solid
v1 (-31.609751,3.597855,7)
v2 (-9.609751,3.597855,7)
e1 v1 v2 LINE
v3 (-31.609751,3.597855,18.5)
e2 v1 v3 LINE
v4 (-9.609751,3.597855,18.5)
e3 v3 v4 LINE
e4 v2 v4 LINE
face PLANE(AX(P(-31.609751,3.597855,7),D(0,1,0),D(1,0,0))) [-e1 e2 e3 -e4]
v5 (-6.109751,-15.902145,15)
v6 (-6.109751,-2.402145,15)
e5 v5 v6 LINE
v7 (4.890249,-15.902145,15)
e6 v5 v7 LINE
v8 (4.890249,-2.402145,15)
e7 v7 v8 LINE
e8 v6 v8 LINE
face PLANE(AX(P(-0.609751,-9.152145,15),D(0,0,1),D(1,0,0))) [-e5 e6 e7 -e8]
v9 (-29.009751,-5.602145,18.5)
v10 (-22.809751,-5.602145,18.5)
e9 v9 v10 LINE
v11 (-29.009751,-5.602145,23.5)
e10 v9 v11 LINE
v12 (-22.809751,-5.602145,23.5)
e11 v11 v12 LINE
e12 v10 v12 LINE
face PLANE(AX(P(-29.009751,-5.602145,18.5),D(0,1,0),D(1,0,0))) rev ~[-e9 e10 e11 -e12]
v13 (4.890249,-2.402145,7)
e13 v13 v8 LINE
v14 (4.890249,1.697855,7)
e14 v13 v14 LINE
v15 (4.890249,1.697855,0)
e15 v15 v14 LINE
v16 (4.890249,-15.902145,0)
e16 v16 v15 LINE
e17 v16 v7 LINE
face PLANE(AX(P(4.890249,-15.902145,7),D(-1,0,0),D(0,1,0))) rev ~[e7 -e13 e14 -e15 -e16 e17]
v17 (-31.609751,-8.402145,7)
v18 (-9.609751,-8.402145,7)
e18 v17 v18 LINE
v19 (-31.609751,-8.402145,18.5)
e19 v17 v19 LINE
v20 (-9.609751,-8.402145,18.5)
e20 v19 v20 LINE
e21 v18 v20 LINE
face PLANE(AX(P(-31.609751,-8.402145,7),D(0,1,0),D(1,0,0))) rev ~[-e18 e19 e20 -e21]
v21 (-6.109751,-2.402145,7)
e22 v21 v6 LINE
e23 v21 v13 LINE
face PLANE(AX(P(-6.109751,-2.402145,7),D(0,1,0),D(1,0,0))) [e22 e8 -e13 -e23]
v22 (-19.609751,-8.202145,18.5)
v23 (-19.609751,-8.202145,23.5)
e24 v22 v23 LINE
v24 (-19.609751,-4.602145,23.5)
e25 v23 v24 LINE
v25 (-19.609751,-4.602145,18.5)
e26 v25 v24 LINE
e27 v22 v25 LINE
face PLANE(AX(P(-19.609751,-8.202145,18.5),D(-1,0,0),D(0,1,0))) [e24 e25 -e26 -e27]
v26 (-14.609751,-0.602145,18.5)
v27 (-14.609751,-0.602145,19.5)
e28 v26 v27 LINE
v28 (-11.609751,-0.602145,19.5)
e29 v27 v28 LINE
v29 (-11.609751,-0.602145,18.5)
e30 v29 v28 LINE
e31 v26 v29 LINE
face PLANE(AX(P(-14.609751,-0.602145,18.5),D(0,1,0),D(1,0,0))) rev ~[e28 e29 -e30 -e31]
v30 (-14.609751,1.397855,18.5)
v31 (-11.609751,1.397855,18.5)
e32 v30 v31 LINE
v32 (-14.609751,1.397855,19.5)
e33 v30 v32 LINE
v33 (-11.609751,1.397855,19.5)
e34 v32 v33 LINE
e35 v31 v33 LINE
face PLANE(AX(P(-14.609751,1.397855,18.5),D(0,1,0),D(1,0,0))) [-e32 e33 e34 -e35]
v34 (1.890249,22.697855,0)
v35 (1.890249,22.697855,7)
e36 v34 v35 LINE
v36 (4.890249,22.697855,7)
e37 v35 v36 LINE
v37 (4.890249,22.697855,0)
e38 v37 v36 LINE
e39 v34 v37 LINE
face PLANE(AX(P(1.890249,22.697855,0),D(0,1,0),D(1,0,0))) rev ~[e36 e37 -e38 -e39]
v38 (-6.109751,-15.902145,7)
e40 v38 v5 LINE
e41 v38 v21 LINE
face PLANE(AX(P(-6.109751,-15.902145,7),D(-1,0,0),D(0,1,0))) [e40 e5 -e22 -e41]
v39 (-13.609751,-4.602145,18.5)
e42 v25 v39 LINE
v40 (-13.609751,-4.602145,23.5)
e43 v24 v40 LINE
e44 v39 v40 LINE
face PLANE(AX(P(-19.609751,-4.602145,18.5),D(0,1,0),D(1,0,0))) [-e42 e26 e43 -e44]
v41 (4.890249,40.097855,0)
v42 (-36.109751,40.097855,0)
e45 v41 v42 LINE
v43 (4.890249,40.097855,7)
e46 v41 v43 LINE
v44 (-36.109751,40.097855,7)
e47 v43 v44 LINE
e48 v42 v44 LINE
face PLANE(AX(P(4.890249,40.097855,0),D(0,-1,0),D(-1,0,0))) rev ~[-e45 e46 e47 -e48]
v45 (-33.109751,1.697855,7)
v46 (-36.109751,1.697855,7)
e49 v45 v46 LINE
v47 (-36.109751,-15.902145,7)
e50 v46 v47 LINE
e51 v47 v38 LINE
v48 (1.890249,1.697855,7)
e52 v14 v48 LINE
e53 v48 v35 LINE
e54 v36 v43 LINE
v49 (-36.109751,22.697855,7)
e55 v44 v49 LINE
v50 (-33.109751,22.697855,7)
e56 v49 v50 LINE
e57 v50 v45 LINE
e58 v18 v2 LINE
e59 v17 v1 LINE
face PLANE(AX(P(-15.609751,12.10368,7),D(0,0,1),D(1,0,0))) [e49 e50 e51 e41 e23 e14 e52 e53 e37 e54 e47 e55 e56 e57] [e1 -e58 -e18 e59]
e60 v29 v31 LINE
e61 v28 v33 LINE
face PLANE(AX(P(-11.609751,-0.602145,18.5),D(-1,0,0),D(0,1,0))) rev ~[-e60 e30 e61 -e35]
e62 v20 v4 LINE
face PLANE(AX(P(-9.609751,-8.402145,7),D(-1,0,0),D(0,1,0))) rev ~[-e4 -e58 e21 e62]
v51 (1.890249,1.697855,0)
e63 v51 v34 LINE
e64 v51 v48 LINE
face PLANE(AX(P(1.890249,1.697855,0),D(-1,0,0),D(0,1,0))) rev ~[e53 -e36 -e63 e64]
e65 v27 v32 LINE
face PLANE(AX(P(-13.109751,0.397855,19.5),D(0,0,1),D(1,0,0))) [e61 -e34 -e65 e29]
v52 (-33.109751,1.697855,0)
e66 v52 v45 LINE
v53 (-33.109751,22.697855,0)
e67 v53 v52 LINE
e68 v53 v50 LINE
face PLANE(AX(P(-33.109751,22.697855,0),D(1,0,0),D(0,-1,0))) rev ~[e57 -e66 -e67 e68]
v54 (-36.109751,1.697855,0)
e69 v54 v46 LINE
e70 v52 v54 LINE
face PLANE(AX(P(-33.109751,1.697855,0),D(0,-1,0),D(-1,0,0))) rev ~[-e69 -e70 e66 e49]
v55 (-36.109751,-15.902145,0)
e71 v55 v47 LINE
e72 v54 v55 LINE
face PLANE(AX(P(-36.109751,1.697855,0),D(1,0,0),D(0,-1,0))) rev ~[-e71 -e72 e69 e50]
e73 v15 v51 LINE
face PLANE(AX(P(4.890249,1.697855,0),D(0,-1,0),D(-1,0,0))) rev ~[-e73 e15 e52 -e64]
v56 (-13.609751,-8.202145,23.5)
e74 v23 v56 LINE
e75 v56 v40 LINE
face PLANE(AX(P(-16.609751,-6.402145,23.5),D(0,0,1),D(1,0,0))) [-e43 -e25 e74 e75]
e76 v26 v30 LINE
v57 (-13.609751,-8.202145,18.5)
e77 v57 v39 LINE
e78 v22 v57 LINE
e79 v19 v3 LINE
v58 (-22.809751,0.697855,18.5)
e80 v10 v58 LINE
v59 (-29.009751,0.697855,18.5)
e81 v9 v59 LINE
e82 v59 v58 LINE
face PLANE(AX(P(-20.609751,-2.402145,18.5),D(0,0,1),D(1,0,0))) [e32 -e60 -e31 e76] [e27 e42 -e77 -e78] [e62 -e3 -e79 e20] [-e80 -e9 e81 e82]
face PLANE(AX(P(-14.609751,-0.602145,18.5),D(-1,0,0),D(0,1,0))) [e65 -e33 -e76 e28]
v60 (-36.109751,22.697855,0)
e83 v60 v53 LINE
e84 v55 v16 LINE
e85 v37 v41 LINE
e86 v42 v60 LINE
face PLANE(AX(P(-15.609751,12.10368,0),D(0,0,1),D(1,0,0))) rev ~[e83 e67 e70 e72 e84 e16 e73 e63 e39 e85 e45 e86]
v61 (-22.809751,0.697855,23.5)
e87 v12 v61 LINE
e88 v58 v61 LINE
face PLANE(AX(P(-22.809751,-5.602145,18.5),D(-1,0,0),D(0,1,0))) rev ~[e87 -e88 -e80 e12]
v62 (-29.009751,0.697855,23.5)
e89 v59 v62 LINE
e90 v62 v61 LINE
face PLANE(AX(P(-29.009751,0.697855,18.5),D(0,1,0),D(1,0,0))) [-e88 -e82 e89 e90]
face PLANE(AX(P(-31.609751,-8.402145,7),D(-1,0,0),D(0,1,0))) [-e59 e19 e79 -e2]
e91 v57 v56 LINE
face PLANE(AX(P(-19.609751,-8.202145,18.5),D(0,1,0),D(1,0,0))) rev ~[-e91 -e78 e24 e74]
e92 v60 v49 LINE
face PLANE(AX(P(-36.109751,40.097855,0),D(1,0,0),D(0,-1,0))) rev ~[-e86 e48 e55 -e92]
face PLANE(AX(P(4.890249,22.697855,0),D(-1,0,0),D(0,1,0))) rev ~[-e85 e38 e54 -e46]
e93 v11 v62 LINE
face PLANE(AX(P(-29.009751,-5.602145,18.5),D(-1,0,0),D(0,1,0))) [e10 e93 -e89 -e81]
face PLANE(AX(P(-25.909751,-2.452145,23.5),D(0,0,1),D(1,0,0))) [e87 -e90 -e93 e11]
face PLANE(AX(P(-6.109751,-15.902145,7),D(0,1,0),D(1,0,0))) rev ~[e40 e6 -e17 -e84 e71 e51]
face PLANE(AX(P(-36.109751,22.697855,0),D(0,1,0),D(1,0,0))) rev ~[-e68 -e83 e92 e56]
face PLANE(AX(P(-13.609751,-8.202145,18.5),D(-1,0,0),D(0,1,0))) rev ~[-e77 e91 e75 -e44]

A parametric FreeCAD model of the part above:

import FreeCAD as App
import Part
import Sketcher

V = App.Vector
Q = App.Units.Quantity


def add_polygon(sketch, points):
    """Adds a closed chain of lines whose ends are joined by coincident constraints."""
    first, n = sketch.GeometryCount, len(points)
    for a, b in zip(points, points[1:] + points[:1]):
        sketch.addGeometry(Part.LineSegment(App.Vector(*a, 0), App.Vector(*b, 0)), False)
    for i in range(n):
        sketch.addConstraint(Sketcher.Constraint("Coincident", first + i, 2, first + (i + 1) % n, 1))

doc = App.newDocument("Part")
params = doc.addObject("Spreadsheet::Sheet", "Params")
for row, (alias, value) in enumerate([
    ("sketch1_width", "41 mm"),
    ("sketch1_width2", "3 mm"),
    ("sketch1_height", "21 mm"),
    ("sketch1_height2", "17.4 mm"),
    ("sketch1_height3", "17.6 mm"),
    ("pad1_length", "7 mm"),
    ("sketch2_width", "11 mm"),
    ("sketch2_height", "13.5 mm"),
    ("pad2_length", "8 mm"),
    ("sketch3_width", "22 mm"),
    ("sketch3_height", "12 mm"),
    ("pad3_length", "11.5 mm"),
    ("sketch4_width", "3 mm"),
    ("sketch4_height", "2 mm"),
    ("pad4_length", "1 mm"),
    ("sketch5_width", "6 mm"),
    ("sketch5_width2", "6.2 mm"),
    ("sketch5_height", "6.3 mm"),
    ("sketch5_height2", "3.6 mm"),
    ("pad5_length", "5 mm"),
], start=1):
    params.set(f"A{row}", alias)
    params.set(f"B{row}", "=" + value)
    params.setAlias(f"B{row}", alias)

body = doc.addObject("PartDesign::Body", "Body")

sketch1 = body.newObject("Sketcher::SketchObject", "Sketch")
sketch1.AttachmentSupport = (doc.getObject("XY_Plane"), [""])
sketch1.MapMode = "FlatFace"
add_polygon(sketch1, [(4.890249, 40.097855), (-36.109751, 40.097855), (-36.109751, 22.697855), (-33.109751, 22.697855), (-33.109751, 1.697855), (-36.109751, 1.697855), (-36.109751, -15.902145), (4.890249, -15.902145), (4.890249, 1.697855), (1.890249, 1.697855), (1.890249, 22.697855), (4.890249, 22.697855)])
sketch1.addConstraint([
    Sketcher.Constraint("Horizontal", 0),
    Sketcher.Constraint("Vertical", 1),
    Sketcher.Constraint("Horizontal", 2),
    Sketcher.Constraint("Vertical", 3),
    Sketcher.Constraint("Horizontal", 4),
    Sketcher.Constraint("Vertical", 5),
    Sketcher.Constraint("Horizontal", 6),
    Sketcher.Constraint("Vertical", 7),
    Sketcher.Constraint("Horizontal", 8),
    Sketcher.Constraint("Vertical", 9),
    Sketcher.Constraint("Horizontal", 10),
    Sketcher.Constraint("Vertical", 11),
    Sketcher.Constraint("Horizontal", 4, 2, 7, 2),
    Sketcher.Constraint("Horizontal", 2, 2, 9, 2),
    Sketcher.Constraint("Vertical", 1, 2, 4, 2),
    Sketcher.Constraint("Vertical", 7, 2, 10, 2),
    Sketcher.Constraint("Equal", 4, 8),
    Sketcher.Constraint("DistanceX", 0, 2, 0, 1, Q("41 mm")),
    Sketcher.Constraint("DistanceX", 2, 1, 2, 2, Q("3 mm")),
    Sketcher.Constraint("DistanceY", 3, 2, 3, 1, Q("21 mm")),
    Sketcher.Constraint("DistanceY", 1, 2, 1, 1, Q("17.4 mm")),
    Sketcher.Constraint("DistanceY", 5, 2, 5, 1, Q("17.6 mm")),
    Sketcher.Constraint("DistanceX", 0, 2, -1, 1, Q("36.109751 mm")),
    Sketcher.Constraint("DistanceY", -1, 1, 0, 2, Q("40.097855 mm")),
])
sketch1.setExpression("Constraints[29]", "Params.sketch1_width")
sketch1.setExpression("Constraints[30]", "Params.sketch1_width2")
sketch1.setExpression("Constraints[31]", "Params.sketch1_height")
sketch1.setExpression("Constraints[32]", "Params.sketch1_height2")
sketch1.setExpression("Constraints[33]", "Params.sketch1_height3")
pad1 = body.newObject("PartDesign::Pad", "Pad")
pad1.Profile = sketch1
pad1.setExpression("Length", "Params.pad1_length")

sketch2 = body.newObject("Sketcher::SketchObject", "Sketch001")
sketch2.AttachmentSupport = (doc.getObject("XY_Plane"), [""])
sketch2.MapMode = "FlatFace"
sketch2.AttachmentOffset = App.Placement(V(0, 0, 7), App.Rotation())
add_polygon(sketch2, [(-6.109751, -2.402145), (-6.109751, -15.902145), (4.890249, -15.902145), (4.890249, -2.402145)])
sketch2.addConstraint([
    Sketcher.Constraint("Vertical", 0),
    Sketcher.Constraint("Horizontal", 1),
    Sketcher.Constraint("Vertical", 2),
    Sketcher.Constraint("Horizontal", 3),
    Sketcher.Constraint("DistanceX", 1, 1, 1, 2, Q("11 mm")),
    Sketcher.Constraint("DistanceY", 0, 2, 0, 1, Q("13.5 mm")),
    Sketcher.Constraint("DistanceX", 0, 2, -1, 1, Q("6.109751 mm")),
    Sketcher.Constraint("DistanceY", 0, 2, -1, 1, Q("15.902145 mm")),
])
sketch2.setExpression("Constraints[8]", "Params.sketch2_width")
sketch2.setExpression("Constraints[9]", "Params.sketch2_height")
pad2 = body.newObject("PartDesign::Pad", "Pad001")
pad2.Profile = sketch2
pad2.setExpression("Length", "Params.pad2_length")

sketch3 = body.newObject("Sketcher::SketchObject", "Sketch002")
sketch3.AttachmentSupport = (doc.getObject("XY_Plane"), [""])
sketch3.MapMode = "FlatFace"
sketch3.AttachmentOffset = App.Placement(V(0, 0, 7), App.Rotation())
add_polygon(sketch3, [(-31.609751, 3.597855), (-31.609751, -8.402145), (-9.609751, -8.402145), (-9.609751, 3.597855)])
sketch3.addConstraint([
    Sketcher.Constraint("Vertical", 0),
    Sketcher.Constraint("Horizontal", 1),
    Sketcher.Constraint("Vertical", 2),
    Sketcher.Constraint("Horizontal", 3),
    Sketcher.Constraint("DistanceX", 1, 1, 1, 2, Q("22 mm")),
    Sketcher.Constraint("DistanceY", 0, 2, 0, 1, Q("12 mm")),
    Sketcher.Constraint("DistanceX", 0, 2, -1, 1, Q("31.609751 mm")),
    Sketcher.Constraint("DistanceY", 0, 2, -1, 1, Q("8.402145 mm")),
])
sketch3.setExpression("Constraints[8]", "Params.sketch3_width")
sketch3.setExpression("Constraints[9]", "Params.sketch3_height")
pad3 = body.newObject("PartDesign::Pad", "Pad002")
pad3.Profile = sketch3
pad3.setExpression("Length", "Params.pad3_length")

sketch4 = body.newObject("Sketcher::SketchObject", "Sketch003")
sketch4.AttachmentSupport = (doc.getObject("XY_Plane"), [""])
sketch4.MapMode = "FlatFace"
sketch4.AttachmentOffset = App.Placement(V(0, 0, 18.5), App.Rotation())
add_polygon(sketch4, [(-14.609751, 1.397855), (-14.609751, -0.602145), (-11.609751, -0.602145), (-11.609751, 1.397855)])
sketch4.addConstraint([
    Sketcher.Constraint("Vertical", 0),
    Sketcher.Constraint("Horizontal", 1),
    Sketcher.Constraint("Vertical", 2),
    Sketcher.Constraint("Horizontal", 3),
    Sketcher.Constraint("DistanceX", 1, 1, 1, 2, Q("3 mm")),
    Sketcher.Constraint("DistanceY", 0, 2, 0, 1, Q("2 mm")),
    Sketcher.Constraint("DistanceX", 0, 2, -1, 1, Q("14.609751 mm")),
    Sketcher.Constraint("DistanceY", 0, 2, -1, 1, Q("0.602145 mm")),
])
sketch4.setExpression("Constraints[8]", "Params.sketch4_width")
sketch4.setExpression("Constraints[9]", "Params.sketch4_height")
pad4 = body.newObject("PartDesign::Pad", "Pad003")
pad4.Profile = sketch4
pad4.setExpression("Length", "Params.pad4_length")

sketch5 = body.newObject("Sketcher::SketchObject", "Sketch004")
sketch5.AttachmentSupport = (doc.getObject("XY_Plane"), [""])
sketch5.MapMode = "FlatFace"
sketch5.AttachmentOffset = App.Placement(V(0, 0, 18.5), App.Rotation())
add_polygon(sketch5, [(-29.009751, 0.697855), (-29.009751, -5.602145), (-22.809751, -5.602145), (-22.809751, 0.697855)])
add_polygon(sketch5, [(-19.609751, -4.602145), (-19.609751, -8.202145), (-13.609751, -8.202145), (-13.609751, -4.602145)])
sketch5.addConstraint([
    Sketcher.Constraint("Vertical", 0),
    Sketcher.Constraint("Horizontal", 1),
    Sketcher.Constraint("Vertical", 2),
    Sketcher.Constraint("Horizontal", 3),
    Sketcher.Constraint("Vertical", 4),
    Sketcher.Constraint("Horizontal", 5),
    Sketcher.Constraint("Vertical", 6),
    Sketcher.Constraint("Horizontal", 7),
    Sketcher.Constraint("DistanceX", 5, 1, 5, 2, Q("6 mm")),
    Sketcher.Constraint("DistanceX", 1, 1, 1, 2, Q("6.2 mm")),
    Sketcher.Constraint("DistanceY", 0, 2, 0, 1, Q("6.3 mm")),
    Sketcher.Constraint("DistanceY", 4, 2, 4, 1, Q("3.6 mm")),
    Sketcher.Constraint("DistanceY", 1, 2, 6, 2, Q("1 mm")),
    Sketcher.Constraint("DistanceX", 1, 2, 4, 2, Q("3.2 mm")),
    Sketcher.Constraint("DistanceX", 0, 2, -1, 1, Q("29.009751 mm")),
    Sketcher.Constraint("DistanceY", 0, 2, -1, 1, Q("5.602145 mm")),
])
sketch5.setExpression("Constraints[16]", "Params.sketch5_width")
sketch5.setExpression("Constraints[17]", "Params.sketch5_width2")
sketch5.setExpression("Constraints[18]", "Params.sketch5_height")
sketch5.setExpression("Constraints[19]", "Params.sketch5_height2")
pad5 = body.newObject("PartDesign::Pad", "Pad004")
pad5.Profile = sketch5
pad5.setExpression("Length", "Params.pad5_length")

doc.recompute()
